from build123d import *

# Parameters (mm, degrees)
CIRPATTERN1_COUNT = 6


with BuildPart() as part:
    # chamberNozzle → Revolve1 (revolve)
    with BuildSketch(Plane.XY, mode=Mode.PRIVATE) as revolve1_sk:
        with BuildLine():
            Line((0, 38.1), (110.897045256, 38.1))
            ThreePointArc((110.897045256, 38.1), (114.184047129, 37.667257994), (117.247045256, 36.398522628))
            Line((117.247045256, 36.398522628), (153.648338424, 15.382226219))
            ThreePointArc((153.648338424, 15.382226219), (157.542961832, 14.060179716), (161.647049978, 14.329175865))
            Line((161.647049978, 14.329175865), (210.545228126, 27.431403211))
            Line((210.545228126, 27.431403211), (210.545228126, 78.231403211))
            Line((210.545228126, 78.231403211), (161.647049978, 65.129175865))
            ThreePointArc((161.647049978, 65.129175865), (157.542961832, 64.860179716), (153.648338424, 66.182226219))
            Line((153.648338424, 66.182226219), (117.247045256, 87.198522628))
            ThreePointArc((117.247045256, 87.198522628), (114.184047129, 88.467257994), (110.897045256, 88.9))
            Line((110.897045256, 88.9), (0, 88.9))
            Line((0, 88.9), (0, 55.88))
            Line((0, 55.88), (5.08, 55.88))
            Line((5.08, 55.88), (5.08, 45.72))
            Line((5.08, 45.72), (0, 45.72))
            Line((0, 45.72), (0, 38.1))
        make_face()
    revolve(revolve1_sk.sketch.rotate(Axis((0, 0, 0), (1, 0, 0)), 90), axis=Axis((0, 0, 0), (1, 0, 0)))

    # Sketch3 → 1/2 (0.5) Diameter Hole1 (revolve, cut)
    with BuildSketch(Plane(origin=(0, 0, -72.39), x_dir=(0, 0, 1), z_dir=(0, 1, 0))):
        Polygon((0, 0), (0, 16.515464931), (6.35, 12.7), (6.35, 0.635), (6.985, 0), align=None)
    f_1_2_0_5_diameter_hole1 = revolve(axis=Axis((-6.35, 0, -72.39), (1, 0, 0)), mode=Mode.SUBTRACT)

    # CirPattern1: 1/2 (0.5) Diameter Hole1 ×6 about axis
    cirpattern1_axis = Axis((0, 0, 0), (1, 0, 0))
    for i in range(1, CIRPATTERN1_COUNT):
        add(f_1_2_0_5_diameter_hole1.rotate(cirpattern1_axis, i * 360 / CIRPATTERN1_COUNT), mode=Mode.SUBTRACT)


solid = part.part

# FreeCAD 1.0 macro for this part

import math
import FreeCAD as App
import Part
import Sketcher
from FreeCAD import Vector
Q = App.Units.Quantity

doc = App.newDocument("Part")
body = doc.addObject("PartDesign::Body", "Body")

sketch1 = body.newObject("Sketcher::SketchObject", "Sketch")
sketch1.AttachmentSupport = (doc.getObject("XY_Plane"), [""])
sketch1.MapMode = "FlatFace"
sketch1.addGeometry(Part.LineSegment(Vector(0, 38, 0), Vector(111, 38, 0)), False)
sketch1.addGeometry(Part.ArcOfCircle(Part.Circle(Vector(111, 25, 0), Vector(0, 0, 1), 13), math.radians(60), math.radians(90)), False)
sketch1.addGeometry(Part.LineSegment(Vector(117, 36, 0), Vector(154, 15, 0)), False)
sketch1.addGeometry(Part.ArcOfCircle(Part.Circle(Vector(159, 25, 0), Vector(0, 0, 1), 11), math.radians(-120), math.radians(-75)), False)
sketch1.addGeometry(Part.LineSegment(Vector(162, 14, 0), Vector(211, 27, 0)), False)
sketch1.addGeometry(Part.LineSegment(Vector(211, 27, 0), Vector(211, 78, 0)), False)
sketch1.addGeometry(Part.LineSegment(Vector(211, 78, 0), Vector(162, 65, 0)), False)
sketch1.addGeometry(Part.ArcOfCircle(Part.Circle(Vector(159, 75, 0), Vector(0, 0, 1), 11), math.radians(-120), math.radians(-75)), False)
sketch1.addGeometry(Part.LineSegment(Vector(154, 66, 0), Vector(117, 87, 0)), False)
sketch1.addGeometry(Part.ArcOfCircle(Part.Circle(Vector(111, 76, 0), Vector(0, 0, 1), 13), math.radians(60), math.radians(90)), False)
sketch1.addGeometry(Part.LineSegment(Vector(111, 89, 0), Vector(0, 89, 0)), False)
sketch1.addGeometry(Part.LineSegment(Vector(0, 89, 0), Vector(0, 56, 0)), False)
sketch1.addGeometry(Part.LineSegment(Vector(0, 56, 0), Vector(5, 56, 0)), False)
sketch1.addGeometry(Part.LineSegment(Vector(5, 56, 0), Vector(5, 46, 0)), False)
sketch1.addGeometry(Part.LineSegment(Vector(5, 46, 0), Vector(0, 46, 0)), False)
sketch1.addGeometry(Part.LineSegment(Vector(0, 46, 0), Vector(0, 38, 0)), False)
sketch1.addConstraint(Sketcher.Constraint("Tangent", 0, 2, 1, 2))
sketch1.addConstraint(Sketcher.Constraint("Tangent", 1, 1, 2, 1))
sketch1.addConstraint(Sketcher.Constraint("Tangent", 2, 2, 3, 1))
sketch1.addConstraint(Sketcher.Constraint("Tangent", 3, 2, 4, 1))
sketch1.addConstraint(Sketcher.Constraint("Coincident", 4, 2, 5, 1))
sketch1.addConstraint(Sketcher.Constraint("Coincident", 5, 2, 6, 1))
sketch1.addConstraint(Sketcher.Constraint("Tangent", 6, 2, 7, 2))
sketch1.addConstraint(Sketcher.Constraint("Tangent", 7, 1, 8, 1))
sketch1.addConstraint(Sketcher.Constraint("Tangent", 8, 2, 9, 1))
sketch1.addConstraint(Sketcher.Constraint("Tangent", 9, 2, 10, 1))
sketch1.addConstraint(Sketcher.Constraint("Coincident", 10, 2, 11, 1))
sketch1.addConstraint(Sketcher.Constraint("Coincident", 11, 2, 12, 1))
sketch1.addConstraint(Sketcher.Constraint("Coincident", 12, 2, 13, 1))
sketch1.addConstraint(Sketcher.Constraint("Coincident", 13, 2, 14, 1))
sketch1.addConstraint(Sketcher.Constraint("Coincident", 14, 2, 15, 1))
sketch1.addConstraint(Sketcher.Constraint("Coincident", 15, 2, 0, 1))
sketch1.addConstraint(Sketcher.Constraint("Horizontal", 0))
sketch1.addConstraint(Sketcher.Constraint("Vertical", 5))
sketch1.addConstraint(Sketcher.Constraint("Horizontal", 10))
sketch1.addConstraint(Sketcher.Constraint("Vertical", 11))
sketch1.addConstraint(Sketcher.Constraint("Horizontal", 12))
sketch1.addConstraint(Sketcher.Constraint("Vertical", 13))
sketch1.addConstraint(Sketcher.Constraint("Horizontal", 14))
sketch1.addConstraint(Sketcher.Constraint("Vertical", 15))
sketch1.addConstraint(Sketcher.Constraint("Equal", 3, 7))
sketch1.addConstraint(Sketcher.Constraint("Equal", 1, 9))
sketch1.addConstraint(Sketcher.Constraint("PointOnObject", 10, 2, -2))
sketch1.addConstraint(Sketcher.Constraint("PointOnObject", 14, 2, -2))
sketch1.addConstraint(Sketcher.Constraint("Parallel", 4, 6))
sketch1.addConstraint(Sketcher.Constraint("Parallel", 2, 8))
sketch1.addConstraint(Sketcher.Constraint("Vertical", 3, 3, 7, 3))
sketch1.addConstraint(Sketcher.Constraint("Vertical", 1, 3, 9, 3))
sketch1.addConstraint(Sketcher.Constraint("Radius", 1, Q("0.5 in")))
sketch1.addConstraint(Sketcher.Constraint("DistanceY", 5, 1, 5, 2, Q("2 in")))
sketch1.addConstraint(Sketcher.Constraint("DistanceX", 12, 1, 12, 2, Q("0.2 in")))
sketch1.addConstraint(Sketcher.Constraint("DistanceY", 11, 2, 11, 1, Q("1.3 in")))
sketch1.addConstraint(Sketcher.Constraint("DistanceY", 13, 2, 13, 1, Q("0.4 in")))
sketch1.addConstraint(Sketcher.Constraint("DistanceY", -1, 1, 1, 3, Q("1 in")))
sketch1.addConstraint(Sketcher.Constraint("Angle", 2, Q("-30 deg")))
sketch1.addConstraint(Sketcher.Constraint("Angle", 4, Q("15 deg")))
sketch1.addConstraint(Sketcher.Constraint("Radius", 3, Q("0.415 in")))
sketch1.addConstraint(Sketcher.Constraint("DistanceY", -1, 1, 3, 3, Q("0.965 in")))
sketch1.addConstraint(Sketcher.Constraint("Distance", 4, 50.623119))
sketch1.addConstraint(Sketcher.Constraint("DistanceX", 0, 1, 0, 2, 110.897045))
revolution = body.newObject("PartDesign::Revolution", "Revolution")
revolution.Profile = sketch1
revolution.ReferenceAxis = (sketch1, ["H_Axis"])
revolution.Angle = 360

sketch2 = body.newObject("Sketcher::SketchObject", "Sketch001")
sketch2.AttachmentSupport = (doc.getObject("XZ_Plane"), [""])
sketch2.MapMode = "FlatFace"
sketch2.addGeometry(Part.LineSegment(Vector(16.5, -72.4, 0), Vector(0, -72.4, 0)), False)
sketch2.addGeometry(Part.LineSegment(Vector(0, -72.4, 0), Vector(0, -65.4, 0)), False)
sketch2.addGeometry(Part.LineSegment(Vector(0, -65.4, 0), Vector(0.6, -66, 0)), False)
sketch2.addGeometry(Part.LineSegment(Vector(0.6, -66, 0), Vector(12.7, -66, 0)), False)
sketch2.addGeometry(Part.LineSegment(Vector(12.7, -66, 0), Vector(16.5, -72.4, 0)), False)
sketch2.addGeometry(Part.LineSegment(Vector(0, -72.4, 0), Vector(16.5, -72.4, 0)), True)
sketch2.addConstraint(Sketcher.Constraint("Coincident", 0, 2, 1, 1))
sketch2.addConstraint(Sketcher.Constraint("Coincident", 1, 2, 2, 1))
sketch2.addConstraint(Sketcher.Constraint("Coincident", 2, 2, 3, 1))
sketch2.addConstraint(Sketcher.Constraint("Coincident", 3, 2, 4, 1))
sketch2.addConstraint(Sketcher.Constraint("Coincident", 4, 2, 0, 1))
sketch2.addConstraint(Sketcher.Constraint("Horizontal", 0))
sketch2.addConstraint(Sketcher.Constraint("Vertical", 1))
sketch2.addConstraint(Sketcher.Constraint("Horizontal", 3))
sketch2.addConstraint(Sketcher.Constraint("Horizontal", 5))
sketch2.addConstraint(Sketcher.Constraint("Coincident", 5, 1, 0, 2))
sketch2.addConstraint(Sketcher.Constraint("PointOnObject", 0, 2, -2))
sketch2.addConstraint(Sketcher.Constraint("Equal", 0, 5))
sketch2.addConstraint(Sketcher.Constraint("Angle", 2, Q("-45 deg")))
sketch2.addConstraint(Sketcher.Constraint("Angle", 4, Q("-59 deg")))
sketch2.addConstraint(Sketcher.Constraint("DistanceY", 2, 2, -1, 1, Q("2.6 in")))
sketch2.addConstraint(Sketcher.Constraint("DistanceX", -1, 1, 3, 2, Q("0.5 in")))
sketch2.addConstraint(Sketcher.Constraint("DistanceX", 3, 1, 3, 2, Q("0.475 in")))
sketch2.addConstraint(Sketcher.Constraint("DistanceY", 1, 1, 1, 2, Q("0.275 in")))
groove = body.newObject("PartDesign::Groove", "Groove")
groove.Profile = sketch2
groove.ReferenceAxis = (sketch2, ["Axis0"])
groove.Angle = 360
doc.recompute()

polarpattern = body.newObject("PartDesign::PolarPattern", "PolarPattern")
polarpattern.Originals = [groove]
polarpattern.Axis = (doc.getObject("X_Axis"), [""])
polarpattern.Angle = 360
polarpattern.Occurrences = 6
body.Tip = polarpattern

doc.recompute()
